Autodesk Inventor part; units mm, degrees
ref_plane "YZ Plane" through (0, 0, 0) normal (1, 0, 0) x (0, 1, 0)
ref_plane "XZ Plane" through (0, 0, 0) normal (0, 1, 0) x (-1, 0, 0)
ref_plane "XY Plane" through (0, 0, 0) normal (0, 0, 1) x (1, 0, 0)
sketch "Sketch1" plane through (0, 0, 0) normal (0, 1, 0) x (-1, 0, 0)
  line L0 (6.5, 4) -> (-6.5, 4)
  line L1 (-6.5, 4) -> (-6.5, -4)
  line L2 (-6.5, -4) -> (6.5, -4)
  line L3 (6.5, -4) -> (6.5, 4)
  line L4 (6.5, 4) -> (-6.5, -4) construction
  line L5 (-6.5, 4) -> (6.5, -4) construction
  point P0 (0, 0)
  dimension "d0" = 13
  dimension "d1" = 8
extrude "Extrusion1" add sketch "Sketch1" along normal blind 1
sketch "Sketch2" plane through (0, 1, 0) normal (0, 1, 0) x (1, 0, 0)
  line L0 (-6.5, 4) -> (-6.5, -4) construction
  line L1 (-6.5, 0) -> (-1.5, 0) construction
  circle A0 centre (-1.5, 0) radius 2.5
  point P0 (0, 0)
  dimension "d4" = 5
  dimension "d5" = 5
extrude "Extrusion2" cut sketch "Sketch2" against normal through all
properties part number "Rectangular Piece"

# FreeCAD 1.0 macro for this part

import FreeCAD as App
import Part
import Sketcher
from FreeCAD import Vector
Q = App.Units.Quantity

doc = App.newDocument("Part")
body = doc.addObject("PartDesign::Body", "Body")

# Sketch on XZ plane
sketch1 = body.newObject("Sketcher::SketchObject", "Sketch")
sketch1.AttachmentSupport = (doc.getObject("XZ_Plane"), [""])
sketch1.MapMode = "FlatFace"
sketch1.addGeometry(Part.LineSegment(Vector(-6, -4, 0), Vector(-6, 4, 0)), False)
sketch1.addGeometry(Part.LineSegment(Vector(-6, 4, 0), Vector(6, 4, 0)), False)
sketch1.addGeometry(Part.LineSegment(Vector(6, 4, 0), Vector(6, -4, 0)), False)
sketch1.addGeometry(Part.LineSegment(Vector(6, -4, 0), Vector(-6, -4, 0)), False)
sketch1.addConstraint(Sketcher.Constraint("Coincident", 0, 2, 1, 1))
sketch1.addConstraint(Sketcher.Constraint("Coincident", 1, 2, 2, 1))
sketch1.addConstraint(Sketcher.Constraint("Coincident", 2, 2, 3, 1))
sketch1.addConstraint(Sketcher.Constraint("Coincident", 3, 2, 0, 1))
sketch1.addConstraint(Sketcher.Constraint("Vertical", 0))
sketch1.addConstraint(Sketcher.Constraint("Horizontal", 1))
sketch1.addConstraint(Sketcher.Constraint("Vertical", 2))
sketch1.addConstraint(Sketcher.Constraint("Horizontal", 3))
sketch1.addConstraint(Sketcher.Constraint("Symmetric", 0, 2, 2, 2, -1, 1))
sketch1.addConstraint(Sketcher.Constraint("DistanceX", 1, 1, 1, 2, Q("13 mm")))
sketch1.addConstraint(Sketcher.Constraint("DistanceY", 0, 1, 0, 2, Q("8 mm")))
pad1 = body.newObject("PartDesign::Pad", "Pad")
pad1.Profile = sketch1
pad1.Length = 1
pad1.Reversed = True

# Sketch on XZ plane
sketch2 = body.newObject("Sketcher::SketchObject", "Sketch001")
sketch2.AttachmentSupport = (doc.getObject("XZ_Plane"), [""])
sketch2.MapMode = "FlatFace"
sketch2.AttachmentOffset = App.Placement(Vector(0, 0, -1), App.Rotation())
sketch2.addGeometry(Part.Circle(Vector(-1.5, 0, 0), Vector(0, 0, 1), 2.5), False)
sketch2.addConstraint(Sketcher.Constraint("PointOnObject", 0, 3, -1))
sketch2.addConstraint(Sketcher.Constraint("Diameter", 0, Q("5 mm")))
sketch2.addConstraint(Sketcher.Constraint("DistanceX", 0, 3, -1, 1, Q("1.5 mm")))
pocket1 = body.newObject("PartDesign::Pocket", "Pocket")
pocket1.Profile = sketch2
pocket1.Type = "ThroughAll"
pocket1.Reversed = True

doc.recompute()
